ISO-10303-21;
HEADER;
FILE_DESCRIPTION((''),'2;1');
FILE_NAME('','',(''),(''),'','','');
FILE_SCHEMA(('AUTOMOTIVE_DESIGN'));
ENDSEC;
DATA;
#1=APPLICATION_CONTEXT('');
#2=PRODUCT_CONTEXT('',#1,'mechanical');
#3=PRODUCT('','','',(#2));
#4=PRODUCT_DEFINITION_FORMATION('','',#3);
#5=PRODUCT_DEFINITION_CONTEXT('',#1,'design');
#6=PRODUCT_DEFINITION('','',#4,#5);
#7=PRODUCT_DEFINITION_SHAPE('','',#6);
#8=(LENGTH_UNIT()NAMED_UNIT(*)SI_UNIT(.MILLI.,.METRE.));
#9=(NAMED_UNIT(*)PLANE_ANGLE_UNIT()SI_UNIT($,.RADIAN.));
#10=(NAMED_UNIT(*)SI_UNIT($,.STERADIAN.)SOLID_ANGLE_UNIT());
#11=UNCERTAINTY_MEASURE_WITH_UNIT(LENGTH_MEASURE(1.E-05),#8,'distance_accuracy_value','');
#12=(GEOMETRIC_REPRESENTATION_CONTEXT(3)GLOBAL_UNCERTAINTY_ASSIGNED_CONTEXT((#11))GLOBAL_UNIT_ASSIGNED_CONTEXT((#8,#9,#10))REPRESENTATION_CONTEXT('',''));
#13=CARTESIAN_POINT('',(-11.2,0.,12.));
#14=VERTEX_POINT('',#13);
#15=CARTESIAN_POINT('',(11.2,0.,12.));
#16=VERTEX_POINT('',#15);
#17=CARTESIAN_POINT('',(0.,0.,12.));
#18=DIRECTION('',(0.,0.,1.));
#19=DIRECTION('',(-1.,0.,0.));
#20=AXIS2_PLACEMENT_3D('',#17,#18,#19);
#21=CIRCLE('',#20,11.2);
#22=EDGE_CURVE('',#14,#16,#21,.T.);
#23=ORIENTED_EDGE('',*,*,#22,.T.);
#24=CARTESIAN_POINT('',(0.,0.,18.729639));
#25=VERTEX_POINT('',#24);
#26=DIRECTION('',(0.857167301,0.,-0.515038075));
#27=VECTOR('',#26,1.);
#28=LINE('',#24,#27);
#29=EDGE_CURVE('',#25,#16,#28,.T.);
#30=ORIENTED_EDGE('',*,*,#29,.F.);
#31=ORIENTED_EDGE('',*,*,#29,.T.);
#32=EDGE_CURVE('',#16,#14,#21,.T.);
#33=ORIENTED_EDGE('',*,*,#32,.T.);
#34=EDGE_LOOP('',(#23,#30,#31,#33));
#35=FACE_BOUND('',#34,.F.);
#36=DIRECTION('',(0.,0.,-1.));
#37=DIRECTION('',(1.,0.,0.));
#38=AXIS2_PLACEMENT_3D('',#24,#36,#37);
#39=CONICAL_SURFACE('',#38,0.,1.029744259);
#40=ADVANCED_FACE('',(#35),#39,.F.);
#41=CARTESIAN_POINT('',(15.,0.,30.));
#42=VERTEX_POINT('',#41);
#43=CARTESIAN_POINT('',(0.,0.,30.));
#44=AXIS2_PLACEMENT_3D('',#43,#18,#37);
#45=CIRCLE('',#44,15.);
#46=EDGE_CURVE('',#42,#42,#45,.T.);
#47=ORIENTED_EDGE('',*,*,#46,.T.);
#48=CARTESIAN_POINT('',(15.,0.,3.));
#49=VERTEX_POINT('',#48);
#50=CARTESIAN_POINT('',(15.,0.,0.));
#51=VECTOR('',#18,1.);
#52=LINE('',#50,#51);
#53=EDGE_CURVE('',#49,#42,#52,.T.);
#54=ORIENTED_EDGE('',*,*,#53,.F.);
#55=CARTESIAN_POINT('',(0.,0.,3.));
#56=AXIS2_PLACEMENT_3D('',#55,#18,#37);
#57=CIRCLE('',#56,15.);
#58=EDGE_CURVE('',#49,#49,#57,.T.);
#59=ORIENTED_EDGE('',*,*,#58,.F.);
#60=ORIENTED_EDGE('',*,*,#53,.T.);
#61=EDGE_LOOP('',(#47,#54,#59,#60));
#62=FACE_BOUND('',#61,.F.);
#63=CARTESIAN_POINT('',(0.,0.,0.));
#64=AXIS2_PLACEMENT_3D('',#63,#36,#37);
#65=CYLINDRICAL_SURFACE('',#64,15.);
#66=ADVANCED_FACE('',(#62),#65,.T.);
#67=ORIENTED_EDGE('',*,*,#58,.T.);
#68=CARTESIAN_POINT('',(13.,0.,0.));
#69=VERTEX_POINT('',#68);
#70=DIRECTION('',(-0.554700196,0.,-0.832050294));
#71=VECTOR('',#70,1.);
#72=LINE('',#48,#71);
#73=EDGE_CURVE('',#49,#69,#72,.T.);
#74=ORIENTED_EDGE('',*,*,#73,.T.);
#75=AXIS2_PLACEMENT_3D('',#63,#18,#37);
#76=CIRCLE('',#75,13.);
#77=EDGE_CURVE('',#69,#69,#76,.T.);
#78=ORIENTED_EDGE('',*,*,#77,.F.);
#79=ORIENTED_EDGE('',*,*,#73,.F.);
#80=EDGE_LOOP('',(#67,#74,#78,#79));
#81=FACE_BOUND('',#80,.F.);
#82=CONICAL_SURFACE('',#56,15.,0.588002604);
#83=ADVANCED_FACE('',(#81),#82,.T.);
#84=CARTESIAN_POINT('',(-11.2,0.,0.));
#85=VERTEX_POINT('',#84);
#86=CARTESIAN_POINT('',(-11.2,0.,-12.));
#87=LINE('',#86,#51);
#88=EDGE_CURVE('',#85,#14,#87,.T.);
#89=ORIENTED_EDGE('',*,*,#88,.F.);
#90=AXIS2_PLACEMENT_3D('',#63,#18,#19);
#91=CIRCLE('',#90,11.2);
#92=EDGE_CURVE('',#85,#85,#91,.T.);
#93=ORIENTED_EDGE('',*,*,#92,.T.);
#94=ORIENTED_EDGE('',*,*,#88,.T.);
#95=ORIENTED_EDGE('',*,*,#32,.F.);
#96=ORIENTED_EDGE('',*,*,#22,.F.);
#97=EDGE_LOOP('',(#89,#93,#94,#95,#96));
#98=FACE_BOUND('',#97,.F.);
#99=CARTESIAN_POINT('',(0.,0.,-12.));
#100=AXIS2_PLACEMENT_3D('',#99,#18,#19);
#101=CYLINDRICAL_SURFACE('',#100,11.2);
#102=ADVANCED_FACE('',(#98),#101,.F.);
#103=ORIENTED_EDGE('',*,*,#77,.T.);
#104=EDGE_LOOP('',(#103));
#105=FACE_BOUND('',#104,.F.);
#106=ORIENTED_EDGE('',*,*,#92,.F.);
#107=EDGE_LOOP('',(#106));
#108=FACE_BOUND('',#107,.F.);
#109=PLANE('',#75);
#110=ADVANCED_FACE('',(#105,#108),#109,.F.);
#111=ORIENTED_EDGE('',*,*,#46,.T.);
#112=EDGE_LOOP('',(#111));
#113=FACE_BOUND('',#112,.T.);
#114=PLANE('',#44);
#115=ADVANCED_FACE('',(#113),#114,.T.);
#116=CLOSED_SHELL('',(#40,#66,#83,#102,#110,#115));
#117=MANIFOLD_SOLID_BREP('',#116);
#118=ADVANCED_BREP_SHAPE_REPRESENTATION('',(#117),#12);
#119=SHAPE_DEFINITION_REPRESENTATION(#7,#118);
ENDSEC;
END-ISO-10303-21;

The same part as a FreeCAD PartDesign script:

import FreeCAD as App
import Part
import Sketcher

V = App.Vector


def edges_at(feature, points):
    """Names of the edges that pass closest to the given points."""
    edges = feature.Shape.Edges
    near = lambda p: min(range(len(edges)), key=lambda i: edges[i].distToShape(Part.Vertex(*p))[0])
    return sorted({f"Edge{near(p) + 1}" for p in points})

doc = App.newDocument("Part")
body = doc.addObject("PartDesign::Body", "Body")

sketch1 = body.newObject("Sketcher::SketchObject", "Sketch")
sketch1.AttachmentSupport = (doc.getObject("XY_Plane"), [""])
sketch1.MapMode = "FlatFace"
sketch1.addGeometry(Part.Circle(V(0, 0, 0), V(0, 0, 1), 15), False)
sketch1.addConstraint([
    Sketcher.Constraint("Coincident", 0, 3, -1, 1),
    Sketcher.Constraint("Diameter", 0, 30.0),
])
pad1 = body.newObject("PartDesign::Pad", "Pad")
pad1.Profile = sketch1
pad1.Length = 30

sketch2 = body.newObject("Sketcher::SketchObject", "Sketch001")
sketch2.AttachmentSupport = (doc.getObject("XY_Plane"), [""])
sketch2.MapMode = "FlatFace"
sketch2.addGeometry(Part.Circle(V(0, 0, 0), V(0, 0, 1), 11.2), False)
sketch2.addConstraint([
    Sketcher.Constraint("Coincident", 0, 3, -1, 1),
    Sketcher.Constraint("Diameter", 0, 22.4),
])
doc.recompute()
hole = body.newObject("PartDesign::Hole", "Hole")
hole.Profile = sketch2
hole.ThreadType = "None"
hole.Diameter = 22.4
hole.DepthType = "Dimension"
hole.Depth = 12
hole.DrillPoint = "Angled"
hole.DrillPointAngle = 118
hole.Reversed = True
doc.recompute()

chamfer = body.newObject("PartDesign::Chamfer", "Chamfer")
chamfer.Base = (hole, edges_at(hole, [(-15, 0, 0)]))
chamfer.ChamferType = "Two distances"
chamfer.Size = 3
chamfer.Size2 = 2

doc.recompute()
